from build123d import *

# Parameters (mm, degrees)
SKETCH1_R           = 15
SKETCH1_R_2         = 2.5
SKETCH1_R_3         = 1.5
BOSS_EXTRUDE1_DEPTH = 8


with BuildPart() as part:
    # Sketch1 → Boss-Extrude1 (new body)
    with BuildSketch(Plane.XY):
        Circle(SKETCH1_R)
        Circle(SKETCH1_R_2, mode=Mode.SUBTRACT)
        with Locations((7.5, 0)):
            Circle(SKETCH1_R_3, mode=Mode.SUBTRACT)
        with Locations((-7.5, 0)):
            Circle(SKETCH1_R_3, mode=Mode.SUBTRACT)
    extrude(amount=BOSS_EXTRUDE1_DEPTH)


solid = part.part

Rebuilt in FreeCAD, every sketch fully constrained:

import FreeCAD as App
import Part
import Sketcher
from FreeCAD import Vector

doc = App.newDocument("Part")
body = doc.addObject("PartDesign::Body", "Body")

sketch1 = doc.addObject("Sketcher::SketchObject", "Sketch")
body.addObject(sketch1)
sketch1.AttachmentSupport = (doc.XY_Plane, [""])
sketch1.MapMode = "FlatFace"
sketch1.addGeometry([
    Part.Circle(Vector(0, 0, 0), Vector(0, 0, 1), 15),
    Part.Circle(Vector(-7.5, 0, 0), Vector(0, 0, 1), 1.5),
    Part.Circle(Vector(0, 0, 0), Vector(0, 0, 1), 2.5),
    Part.Circle(Vector(7.5, 0, 0), Vector(0, 0, 1), 1.5),
], False)
sketch1.addConstraint([
    Sketcher.Constraint("Coincident", 0, 3, -1, 1),
    Sketcher.Constraint("Coincident", 2, 3, -1, 1),
    Sketcher.Constraint("Equal", 1, 3),
    Sketcher.Constraint("Symmetric", 1, 3, 3, 3, -1, 1),
    Sketcher.Constraint("PointOnObject", 1, 3, -1),
    Sketcher.Constraint("Diameter", 0, 30.0),
    Sketcher.Constraint("Diameter", 1, 3.0),
    Sketcher.Constraint("Diameter", 2, 5.0),
    Sketcher.Constraint("DistanceX", 1, 3, 3, 3, 15.0),
])
pad1 = doc.addObject("PartDesign::Pad", "Pad")
body.addObject(pad1)
pad1.Profile = sketch1
pad1.Length = 8

doc.recompute()
